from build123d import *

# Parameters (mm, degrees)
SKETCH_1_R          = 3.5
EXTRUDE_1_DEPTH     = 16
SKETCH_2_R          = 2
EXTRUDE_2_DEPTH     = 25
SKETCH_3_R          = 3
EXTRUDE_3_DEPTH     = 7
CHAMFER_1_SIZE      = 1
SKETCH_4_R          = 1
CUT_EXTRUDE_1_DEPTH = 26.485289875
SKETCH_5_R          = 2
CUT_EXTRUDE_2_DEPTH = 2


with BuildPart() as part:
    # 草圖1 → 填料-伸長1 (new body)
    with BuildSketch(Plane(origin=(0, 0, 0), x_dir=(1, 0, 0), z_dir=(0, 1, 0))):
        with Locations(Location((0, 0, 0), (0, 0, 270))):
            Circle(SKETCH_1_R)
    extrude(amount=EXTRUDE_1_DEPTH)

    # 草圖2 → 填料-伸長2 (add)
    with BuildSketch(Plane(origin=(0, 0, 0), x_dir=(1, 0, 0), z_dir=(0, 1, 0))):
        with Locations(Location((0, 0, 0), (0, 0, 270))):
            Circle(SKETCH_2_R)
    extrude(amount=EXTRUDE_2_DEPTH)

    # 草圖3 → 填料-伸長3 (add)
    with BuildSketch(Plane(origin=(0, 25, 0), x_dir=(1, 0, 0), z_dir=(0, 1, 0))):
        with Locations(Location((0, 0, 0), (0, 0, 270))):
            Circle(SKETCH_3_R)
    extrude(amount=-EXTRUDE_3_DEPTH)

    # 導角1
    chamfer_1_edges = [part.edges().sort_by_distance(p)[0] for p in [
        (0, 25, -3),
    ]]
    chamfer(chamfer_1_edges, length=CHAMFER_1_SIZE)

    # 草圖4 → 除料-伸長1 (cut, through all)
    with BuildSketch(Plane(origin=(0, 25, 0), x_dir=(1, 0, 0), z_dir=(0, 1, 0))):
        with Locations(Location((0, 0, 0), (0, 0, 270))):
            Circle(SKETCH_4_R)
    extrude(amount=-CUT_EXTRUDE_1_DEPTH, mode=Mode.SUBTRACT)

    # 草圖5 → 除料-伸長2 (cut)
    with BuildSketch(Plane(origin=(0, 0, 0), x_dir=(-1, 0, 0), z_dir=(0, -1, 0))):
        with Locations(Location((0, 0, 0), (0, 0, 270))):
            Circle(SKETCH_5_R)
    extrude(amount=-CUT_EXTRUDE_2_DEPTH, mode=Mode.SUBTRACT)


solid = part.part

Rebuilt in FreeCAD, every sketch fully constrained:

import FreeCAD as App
import Part
import Sketcher
Q = App.Units.Quantity


def edges_at(feature, points):
    """Names of the edges that pass closest to the given points."""
    edges = feature.Shape.Edges
    near = lambda p: min(range(len(edges)), key=lambda i: edges[i].distToShape(Part.Vertex(*p))[0])
    return sorted({f"Edge{near(p) + 1}" for p in points})

doc = App.newDocument("Part")
params = doc.addObject("Spreadsheet::Sheet", "Params")
for row, (alias, value) in enumerate([
    ("sketch1_diameter", "7 mm"),
    ("pad1_length", "16 mm"),
    ("sketch2_diameter", "4 mm"),
    ("pad2_length", "25 mm"),
    ("sketch3_diameter", "6 mm"),
    ("pad3_length", "7 mm"),
    ("chamfer_size", "1 mm"),
    ("sketch4_diameter", "2 mm"),
    ("sketch5_diameter", "4 mm"),
    ("pocket2_length", "2 mm"),
], start=1):
    params.set(f"A{row}", alias)
    params.set(f"B{row}", "=" + value)
    params.setAlias(f"B{row}", alias)

body = doc.addObject("PartDesign::Body", "Body")

# Sketch on XZ plane
sketch1 = body.newObject("Sketcher::SketchObject", "Sketch")
sketch1.AttachmentSupport = (doc.getObject("XZ_Plane"), [""])
sketch1.MapMode = "FlatFace"
sketch1.addGeometry(Part.Circle(App.Vector(0, 0, 0), App.Vector(0, 0, 1), 3.5), False)
sketch1.addConstraint([
    Sketcher.Constraint("Coincident", 0, 3, -1, 1),
    Sketcher.Constraint("Diameter", 0, Q("7 mm")),
])
sketch1.setExpression("Constraints[1]", "Params.sketch1_diameter")
pad1 = body.newObject("PartDesign::Pad", "Pad")
pad1.Profile = sketch1
pad1.setExpression("Length", "Params.pad1_length")
pad1.Reversed = True

# Sketch on XZ plane
sketch2 = body.newObject("Sketcher::SketchObject", "Sketch001")
sketch2.AttachmentSupport = (doc.getObject("XZ_Plane"), [""])
sketch2.MapMode = "FlatFace"
sketch2.addGeometry(Part.Circle(App.Vector(0, 0, 0), App.Vector(0, 0, 1), 2), False)
sketch2.addConstraint([
    Sketcher.Constraint("Coincident", 0, 3, -1, 1),
    Sketcher.Constraint("Diameter", 0, Q("4 mm")),
])
sketch2.setExpression("Constraints[1]", "Params.sketch2_diameter")
pad2 = body.newObject("PartDesign::Pad", "Pad001")
pad2.Profile = sketch2
pad2.setExpression("Length", "Params.pad2_length")
pad2.Reversed = True

# Sketch on XZ plane
sketch3 = body.newObject("Sketcher::SketchObject", "Sketch002")
sketch3.AttachmentSupport = (doc.getObject("XZ_Plane"), [""])
sketch3.MapMode = "FlatFace"
sketch3.AttachmentOffset = App.Placement(App.Vector(0, 0, -25), App.Rotation())
sketch3.addGeometry(Part.Circle(App.Vector(0, 0, 0), App.Vector(0, 0, 1), 3), False)
sketch3.addConstraint([
    Sketcher.Constraint("Coincident", 0, 3, -1, 1),
    Sketcher.Constraint("Diameter", 0, Q("6 mm")),
])
sketch3.setExpression("Constraints[1]", "Params.sketch3_diameter")
pad3 = body.newObject("PartDesign::Pad", "Pad002")
pad3.Profile = sketch3
pad3.setExpression("Length", "Params.pad3_length")
doc.recompute()

chamfer = body.newObject("PartDesign::Chamfer", "Chamfer")
chamfer.Base = (pad3, edges_at(pad3, [(0, 25, -3)]))
chamfer.setExpression("Size", "Params.chamfer_size")

# Sketch on XZ plane
sketch4 = body.newObject("Sketcher::SketchObject", "Sketch003")
sketch4.AttachmentSupport = (doc.getObject("XZ_Plane"), [""])
sketch4.MapMode = "FlatFace"
sketch4.AttachmentOffset = App.Placement(App.Vector(0, 0, -25), App.Rotation())
sketch4.addGeometry(Part.Circle(App.Vector(0, 0, 0), App.Vector(0, 0, 1), 1), False)
sketch4.addConstraint([
    Sketcher.Constraint("Coincident", 0, 3, -1, 1),
    Sketcher.Constraint("Diameter", 0, Q("2 mm")),
])
sketch4.setExpression("Constraints[1]", "Params.sketch4_diameter")
pocket1 = body.newObject("PartDesign::Pocket", "Pocket")
pocket1.Profile = sketch4
pocket1.Type = "ThroughAll"
pocket1.Reversed = True

# Sketch on XZ plane
sketch5 = body.newObject("Sketcher::SketchObject", "Sketch004")
sketch5.AttachmentSupport = (doc.getObject("XZ_Plane"), [""])
sketch5.MapMode = "FlatFace"
sketch5.addGeometry(Part.Circle(App.Vector(0, 0, 0), App.Vector(0, 0, 1), 2), False)
sketch5.addConstraint([
    Sketcher.Constraint("Coincident", 0, 3, -1, 1),
    Sketcher.Constraint("Diameter", 0, Q("4 mm")),
])
sketch5.setExpression("Constraints[1]", "Params.sketch5_diameter")
pocket2 = body.newObject("PartDesign::Pocket", "Pocket001")
pocket2.Profile = sketch5
pocket2.setExpression("Length", "Params.pocket2_length")

doc.recompute()
